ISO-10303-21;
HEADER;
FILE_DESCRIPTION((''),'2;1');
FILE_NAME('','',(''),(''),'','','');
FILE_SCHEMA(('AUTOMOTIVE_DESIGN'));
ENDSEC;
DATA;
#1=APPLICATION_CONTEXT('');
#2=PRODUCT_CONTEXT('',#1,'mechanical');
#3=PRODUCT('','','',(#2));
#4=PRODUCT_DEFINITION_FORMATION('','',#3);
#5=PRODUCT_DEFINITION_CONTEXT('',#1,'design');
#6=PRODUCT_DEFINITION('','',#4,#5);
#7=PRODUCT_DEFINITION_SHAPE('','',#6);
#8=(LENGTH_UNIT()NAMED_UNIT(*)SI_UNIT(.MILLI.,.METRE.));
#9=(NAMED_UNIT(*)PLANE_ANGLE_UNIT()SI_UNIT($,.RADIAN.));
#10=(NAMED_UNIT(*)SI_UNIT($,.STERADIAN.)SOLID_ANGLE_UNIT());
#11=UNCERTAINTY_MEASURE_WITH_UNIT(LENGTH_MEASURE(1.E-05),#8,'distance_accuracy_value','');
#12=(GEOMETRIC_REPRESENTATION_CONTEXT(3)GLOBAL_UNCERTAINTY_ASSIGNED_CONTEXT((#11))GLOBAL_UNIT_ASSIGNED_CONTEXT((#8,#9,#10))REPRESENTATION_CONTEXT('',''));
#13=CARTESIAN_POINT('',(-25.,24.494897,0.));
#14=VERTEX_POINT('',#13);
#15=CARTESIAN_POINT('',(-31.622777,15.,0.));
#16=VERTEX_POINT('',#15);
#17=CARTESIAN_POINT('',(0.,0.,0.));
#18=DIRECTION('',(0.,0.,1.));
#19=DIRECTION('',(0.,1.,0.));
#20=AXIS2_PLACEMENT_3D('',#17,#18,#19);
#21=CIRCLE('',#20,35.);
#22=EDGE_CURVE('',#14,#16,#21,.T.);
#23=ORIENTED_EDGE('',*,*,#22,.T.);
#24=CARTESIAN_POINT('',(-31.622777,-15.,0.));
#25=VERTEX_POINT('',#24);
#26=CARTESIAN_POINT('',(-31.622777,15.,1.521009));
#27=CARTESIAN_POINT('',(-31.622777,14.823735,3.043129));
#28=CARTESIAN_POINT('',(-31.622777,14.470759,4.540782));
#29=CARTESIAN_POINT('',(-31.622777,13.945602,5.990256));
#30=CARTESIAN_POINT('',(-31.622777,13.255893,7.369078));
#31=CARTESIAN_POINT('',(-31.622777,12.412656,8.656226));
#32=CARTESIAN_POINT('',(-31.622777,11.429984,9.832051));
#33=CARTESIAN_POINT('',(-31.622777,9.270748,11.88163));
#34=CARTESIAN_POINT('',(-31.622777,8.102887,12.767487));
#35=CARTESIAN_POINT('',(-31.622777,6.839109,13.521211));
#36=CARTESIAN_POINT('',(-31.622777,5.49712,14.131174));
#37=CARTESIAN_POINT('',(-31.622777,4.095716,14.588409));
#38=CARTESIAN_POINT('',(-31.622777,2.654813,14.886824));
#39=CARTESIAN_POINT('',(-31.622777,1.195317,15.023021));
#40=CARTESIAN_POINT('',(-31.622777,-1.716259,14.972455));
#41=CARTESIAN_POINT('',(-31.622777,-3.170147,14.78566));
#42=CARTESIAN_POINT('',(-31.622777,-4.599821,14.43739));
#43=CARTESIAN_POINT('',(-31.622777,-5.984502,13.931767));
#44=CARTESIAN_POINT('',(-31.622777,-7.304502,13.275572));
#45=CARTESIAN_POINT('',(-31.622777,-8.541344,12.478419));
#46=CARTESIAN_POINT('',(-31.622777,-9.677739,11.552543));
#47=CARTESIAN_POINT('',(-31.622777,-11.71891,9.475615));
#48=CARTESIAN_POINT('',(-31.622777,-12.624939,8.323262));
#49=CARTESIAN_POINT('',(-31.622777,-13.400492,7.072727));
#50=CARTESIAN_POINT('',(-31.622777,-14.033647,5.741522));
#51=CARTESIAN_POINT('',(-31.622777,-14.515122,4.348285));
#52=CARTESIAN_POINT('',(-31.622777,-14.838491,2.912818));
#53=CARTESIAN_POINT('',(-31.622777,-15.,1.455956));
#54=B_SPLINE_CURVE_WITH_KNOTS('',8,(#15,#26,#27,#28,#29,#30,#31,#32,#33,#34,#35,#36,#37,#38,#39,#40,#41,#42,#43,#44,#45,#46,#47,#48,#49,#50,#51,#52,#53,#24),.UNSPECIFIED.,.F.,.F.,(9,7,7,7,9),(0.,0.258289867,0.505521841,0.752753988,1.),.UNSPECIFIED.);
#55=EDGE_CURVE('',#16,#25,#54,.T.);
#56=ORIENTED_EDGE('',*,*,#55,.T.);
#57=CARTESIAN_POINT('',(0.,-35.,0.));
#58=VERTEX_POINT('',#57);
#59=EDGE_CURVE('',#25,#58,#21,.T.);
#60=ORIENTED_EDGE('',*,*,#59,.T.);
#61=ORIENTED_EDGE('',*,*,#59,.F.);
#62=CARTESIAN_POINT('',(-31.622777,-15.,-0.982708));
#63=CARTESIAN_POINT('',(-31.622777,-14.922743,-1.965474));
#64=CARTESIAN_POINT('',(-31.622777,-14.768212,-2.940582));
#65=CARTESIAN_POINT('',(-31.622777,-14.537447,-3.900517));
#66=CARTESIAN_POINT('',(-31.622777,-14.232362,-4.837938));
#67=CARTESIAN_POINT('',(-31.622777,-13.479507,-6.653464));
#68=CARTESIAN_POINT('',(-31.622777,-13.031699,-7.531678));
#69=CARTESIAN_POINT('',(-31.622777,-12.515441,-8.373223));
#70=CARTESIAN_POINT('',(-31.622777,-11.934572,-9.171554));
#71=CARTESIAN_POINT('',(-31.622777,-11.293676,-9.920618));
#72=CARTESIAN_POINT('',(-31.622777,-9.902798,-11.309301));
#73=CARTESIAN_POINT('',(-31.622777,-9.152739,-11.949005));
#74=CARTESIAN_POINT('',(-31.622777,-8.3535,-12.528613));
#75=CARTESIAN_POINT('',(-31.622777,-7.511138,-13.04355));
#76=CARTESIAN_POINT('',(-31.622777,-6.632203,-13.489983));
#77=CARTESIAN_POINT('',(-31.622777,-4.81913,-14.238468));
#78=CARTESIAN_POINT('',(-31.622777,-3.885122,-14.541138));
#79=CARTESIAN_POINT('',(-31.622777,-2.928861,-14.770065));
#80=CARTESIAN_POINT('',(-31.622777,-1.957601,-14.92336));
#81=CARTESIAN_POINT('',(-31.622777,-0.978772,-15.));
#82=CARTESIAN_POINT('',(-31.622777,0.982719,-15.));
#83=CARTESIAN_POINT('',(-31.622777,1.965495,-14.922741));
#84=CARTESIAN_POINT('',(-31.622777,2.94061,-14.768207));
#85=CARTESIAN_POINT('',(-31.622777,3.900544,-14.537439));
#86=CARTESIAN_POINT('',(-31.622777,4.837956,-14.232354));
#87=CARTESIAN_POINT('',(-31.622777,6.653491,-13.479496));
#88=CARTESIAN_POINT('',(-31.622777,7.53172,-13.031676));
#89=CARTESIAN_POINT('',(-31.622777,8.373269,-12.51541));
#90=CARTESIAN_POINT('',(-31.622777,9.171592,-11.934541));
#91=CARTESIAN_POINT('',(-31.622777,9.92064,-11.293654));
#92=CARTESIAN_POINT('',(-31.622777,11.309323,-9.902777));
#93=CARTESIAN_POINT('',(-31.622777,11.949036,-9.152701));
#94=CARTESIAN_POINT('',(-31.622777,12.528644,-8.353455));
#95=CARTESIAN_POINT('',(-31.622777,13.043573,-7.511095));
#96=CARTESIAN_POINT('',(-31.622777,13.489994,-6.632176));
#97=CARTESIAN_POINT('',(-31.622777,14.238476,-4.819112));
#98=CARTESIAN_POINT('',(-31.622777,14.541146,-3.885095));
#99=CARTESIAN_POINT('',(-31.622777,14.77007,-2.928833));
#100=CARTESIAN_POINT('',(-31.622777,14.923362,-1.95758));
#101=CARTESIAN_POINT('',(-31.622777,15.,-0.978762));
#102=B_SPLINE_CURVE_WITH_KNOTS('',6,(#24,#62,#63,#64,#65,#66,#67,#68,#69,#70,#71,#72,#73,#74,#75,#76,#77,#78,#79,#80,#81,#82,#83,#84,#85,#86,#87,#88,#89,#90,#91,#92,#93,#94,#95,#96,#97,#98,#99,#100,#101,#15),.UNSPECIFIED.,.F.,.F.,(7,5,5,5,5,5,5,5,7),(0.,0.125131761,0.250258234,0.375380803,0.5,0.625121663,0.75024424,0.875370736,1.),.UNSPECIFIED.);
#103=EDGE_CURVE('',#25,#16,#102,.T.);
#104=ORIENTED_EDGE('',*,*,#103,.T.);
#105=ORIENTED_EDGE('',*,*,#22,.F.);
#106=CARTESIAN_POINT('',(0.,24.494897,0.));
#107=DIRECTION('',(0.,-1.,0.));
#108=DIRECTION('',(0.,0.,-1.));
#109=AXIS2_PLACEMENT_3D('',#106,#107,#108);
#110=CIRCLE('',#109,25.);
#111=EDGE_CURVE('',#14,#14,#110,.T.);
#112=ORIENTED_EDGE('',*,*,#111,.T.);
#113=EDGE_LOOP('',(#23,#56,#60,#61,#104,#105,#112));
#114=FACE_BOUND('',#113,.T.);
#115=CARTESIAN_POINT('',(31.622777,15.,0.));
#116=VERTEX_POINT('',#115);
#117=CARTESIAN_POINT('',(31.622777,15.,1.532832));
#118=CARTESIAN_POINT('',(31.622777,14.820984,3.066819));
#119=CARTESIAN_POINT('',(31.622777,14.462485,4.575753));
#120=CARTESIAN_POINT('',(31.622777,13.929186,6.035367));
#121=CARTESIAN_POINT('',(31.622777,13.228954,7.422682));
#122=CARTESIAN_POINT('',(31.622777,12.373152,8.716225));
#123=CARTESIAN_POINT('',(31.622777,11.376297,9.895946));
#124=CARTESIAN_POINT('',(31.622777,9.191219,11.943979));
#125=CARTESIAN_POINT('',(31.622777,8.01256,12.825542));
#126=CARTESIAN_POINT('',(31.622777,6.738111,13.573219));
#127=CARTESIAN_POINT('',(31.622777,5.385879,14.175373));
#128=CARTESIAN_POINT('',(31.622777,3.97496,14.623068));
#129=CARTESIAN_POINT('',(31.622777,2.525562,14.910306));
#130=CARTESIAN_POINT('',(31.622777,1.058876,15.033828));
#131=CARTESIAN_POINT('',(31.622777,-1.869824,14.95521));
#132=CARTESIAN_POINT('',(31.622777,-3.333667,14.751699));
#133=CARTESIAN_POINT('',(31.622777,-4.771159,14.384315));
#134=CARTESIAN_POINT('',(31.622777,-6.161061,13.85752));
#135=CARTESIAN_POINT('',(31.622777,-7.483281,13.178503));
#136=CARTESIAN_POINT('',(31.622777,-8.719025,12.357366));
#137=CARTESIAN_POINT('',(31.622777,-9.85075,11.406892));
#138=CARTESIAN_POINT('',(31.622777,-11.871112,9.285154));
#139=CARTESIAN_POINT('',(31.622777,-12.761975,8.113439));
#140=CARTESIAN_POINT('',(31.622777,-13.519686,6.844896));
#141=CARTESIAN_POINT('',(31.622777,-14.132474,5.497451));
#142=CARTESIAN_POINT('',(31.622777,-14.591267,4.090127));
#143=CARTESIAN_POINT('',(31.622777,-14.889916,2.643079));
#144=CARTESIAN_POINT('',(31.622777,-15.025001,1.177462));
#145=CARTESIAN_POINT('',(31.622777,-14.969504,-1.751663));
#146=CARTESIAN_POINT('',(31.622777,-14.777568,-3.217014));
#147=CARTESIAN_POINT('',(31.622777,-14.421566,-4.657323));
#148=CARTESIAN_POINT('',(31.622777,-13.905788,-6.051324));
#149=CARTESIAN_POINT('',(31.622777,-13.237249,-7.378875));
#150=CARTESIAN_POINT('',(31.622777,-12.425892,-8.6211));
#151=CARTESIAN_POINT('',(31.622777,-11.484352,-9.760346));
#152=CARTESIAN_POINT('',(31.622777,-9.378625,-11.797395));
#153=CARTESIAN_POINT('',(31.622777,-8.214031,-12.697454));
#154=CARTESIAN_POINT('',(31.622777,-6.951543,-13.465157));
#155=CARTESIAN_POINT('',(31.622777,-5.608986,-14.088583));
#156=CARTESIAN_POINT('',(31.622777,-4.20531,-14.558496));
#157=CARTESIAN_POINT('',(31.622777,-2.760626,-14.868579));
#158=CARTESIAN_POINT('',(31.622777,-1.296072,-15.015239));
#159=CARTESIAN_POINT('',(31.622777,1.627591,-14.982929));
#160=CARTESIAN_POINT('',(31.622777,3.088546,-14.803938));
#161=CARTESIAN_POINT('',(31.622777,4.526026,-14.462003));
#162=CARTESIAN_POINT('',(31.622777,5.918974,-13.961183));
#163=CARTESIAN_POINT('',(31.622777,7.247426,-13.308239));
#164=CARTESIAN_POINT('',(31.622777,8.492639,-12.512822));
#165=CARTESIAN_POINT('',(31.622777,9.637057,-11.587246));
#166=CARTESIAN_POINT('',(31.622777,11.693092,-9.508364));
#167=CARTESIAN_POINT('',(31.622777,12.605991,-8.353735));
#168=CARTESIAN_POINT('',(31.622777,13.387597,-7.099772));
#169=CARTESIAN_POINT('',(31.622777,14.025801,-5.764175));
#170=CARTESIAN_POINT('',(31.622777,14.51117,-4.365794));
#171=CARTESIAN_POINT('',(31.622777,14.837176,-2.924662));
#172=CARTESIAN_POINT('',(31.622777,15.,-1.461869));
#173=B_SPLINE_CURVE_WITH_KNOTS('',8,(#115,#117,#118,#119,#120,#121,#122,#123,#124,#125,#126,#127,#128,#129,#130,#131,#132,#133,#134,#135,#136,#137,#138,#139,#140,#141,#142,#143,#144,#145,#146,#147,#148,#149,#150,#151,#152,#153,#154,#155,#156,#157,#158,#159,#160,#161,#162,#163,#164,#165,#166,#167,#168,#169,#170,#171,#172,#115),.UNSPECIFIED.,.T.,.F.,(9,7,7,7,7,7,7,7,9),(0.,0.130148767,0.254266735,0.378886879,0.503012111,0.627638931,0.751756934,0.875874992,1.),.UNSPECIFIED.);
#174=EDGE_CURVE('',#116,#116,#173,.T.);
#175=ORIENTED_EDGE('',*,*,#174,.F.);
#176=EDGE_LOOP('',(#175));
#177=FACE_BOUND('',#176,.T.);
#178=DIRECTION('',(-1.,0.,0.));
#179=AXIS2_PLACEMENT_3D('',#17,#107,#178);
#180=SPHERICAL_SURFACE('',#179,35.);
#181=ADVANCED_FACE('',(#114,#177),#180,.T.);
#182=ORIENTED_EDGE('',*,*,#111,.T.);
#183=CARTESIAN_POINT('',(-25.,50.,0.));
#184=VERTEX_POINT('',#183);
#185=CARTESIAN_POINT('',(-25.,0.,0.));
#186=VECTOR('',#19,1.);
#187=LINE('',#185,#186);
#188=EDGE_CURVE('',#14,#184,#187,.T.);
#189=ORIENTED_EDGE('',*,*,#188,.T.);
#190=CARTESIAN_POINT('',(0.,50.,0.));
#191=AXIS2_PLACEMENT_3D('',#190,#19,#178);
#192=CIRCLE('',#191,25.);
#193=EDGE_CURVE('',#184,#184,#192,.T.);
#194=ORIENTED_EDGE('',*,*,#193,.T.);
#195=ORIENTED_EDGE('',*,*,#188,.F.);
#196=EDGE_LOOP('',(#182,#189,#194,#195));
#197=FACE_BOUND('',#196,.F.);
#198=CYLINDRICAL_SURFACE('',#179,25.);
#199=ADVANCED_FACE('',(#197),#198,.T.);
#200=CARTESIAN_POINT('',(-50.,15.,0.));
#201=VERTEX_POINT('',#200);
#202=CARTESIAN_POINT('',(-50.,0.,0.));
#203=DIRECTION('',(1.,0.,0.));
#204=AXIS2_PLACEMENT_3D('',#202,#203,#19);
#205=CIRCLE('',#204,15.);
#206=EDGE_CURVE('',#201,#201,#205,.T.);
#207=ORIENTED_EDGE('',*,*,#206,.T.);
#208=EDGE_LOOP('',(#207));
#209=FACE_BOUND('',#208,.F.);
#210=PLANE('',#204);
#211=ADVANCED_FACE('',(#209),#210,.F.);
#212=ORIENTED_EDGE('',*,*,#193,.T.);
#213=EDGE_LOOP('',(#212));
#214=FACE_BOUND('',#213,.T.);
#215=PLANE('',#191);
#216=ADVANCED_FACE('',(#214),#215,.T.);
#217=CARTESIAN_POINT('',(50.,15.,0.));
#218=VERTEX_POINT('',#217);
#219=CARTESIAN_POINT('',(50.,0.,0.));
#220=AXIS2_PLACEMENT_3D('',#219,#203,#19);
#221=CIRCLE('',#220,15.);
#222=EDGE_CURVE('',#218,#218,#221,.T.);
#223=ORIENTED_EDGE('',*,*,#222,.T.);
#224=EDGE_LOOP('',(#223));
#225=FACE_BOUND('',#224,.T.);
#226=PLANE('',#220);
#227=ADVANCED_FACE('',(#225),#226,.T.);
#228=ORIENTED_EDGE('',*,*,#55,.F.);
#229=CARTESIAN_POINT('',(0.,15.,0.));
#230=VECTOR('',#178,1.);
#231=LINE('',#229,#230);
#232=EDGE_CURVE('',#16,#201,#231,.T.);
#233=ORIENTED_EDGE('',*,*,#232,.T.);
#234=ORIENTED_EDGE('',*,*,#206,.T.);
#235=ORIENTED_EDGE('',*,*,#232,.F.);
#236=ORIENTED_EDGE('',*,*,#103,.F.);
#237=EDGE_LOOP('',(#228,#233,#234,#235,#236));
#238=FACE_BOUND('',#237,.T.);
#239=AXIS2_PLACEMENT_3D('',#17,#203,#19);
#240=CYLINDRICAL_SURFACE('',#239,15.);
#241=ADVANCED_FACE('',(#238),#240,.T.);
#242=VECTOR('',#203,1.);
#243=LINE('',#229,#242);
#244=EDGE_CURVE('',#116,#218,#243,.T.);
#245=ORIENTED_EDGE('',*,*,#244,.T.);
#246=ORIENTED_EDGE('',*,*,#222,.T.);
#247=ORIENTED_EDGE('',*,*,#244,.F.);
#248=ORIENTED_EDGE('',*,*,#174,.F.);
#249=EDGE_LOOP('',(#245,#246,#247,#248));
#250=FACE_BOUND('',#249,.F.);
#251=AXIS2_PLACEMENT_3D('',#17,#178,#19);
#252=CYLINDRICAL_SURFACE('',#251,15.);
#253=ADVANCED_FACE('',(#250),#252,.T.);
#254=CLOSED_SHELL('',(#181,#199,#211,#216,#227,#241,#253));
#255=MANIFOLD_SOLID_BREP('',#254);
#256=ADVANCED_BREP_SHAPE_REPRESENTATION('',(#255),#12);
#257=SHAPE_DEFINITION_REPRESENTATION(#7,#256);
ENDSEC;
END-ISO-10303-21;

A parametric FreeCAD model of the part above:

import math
import FreeCAD as App
import Part
import Sketcher
from FreeCAD import Vector
Q = App.Units.Quantity

doc = App.newDocument("Part")
body = doc.addObject("PartDesign::Body", "Body")

sketch1 = body.newObject("Sketcher::SketchObject", "Sketch")
sketch1.AttachmentSupport = (doc.getObject("XY_Plane"), [""])
sketch1.MapMode = "FlatFace"
sketch1.addGeometry([
    Part.LineSegment(Vector(0, -35, 0), Vector(0, 35, 0)),
    Part.ArcOfCircle(Part.Circle(Vector(0, 0, 0), Vector(0, 0, 1), 35), math.radians(90), math.radians(270)),
], False)
sketch1.addConstraint([
    Sketcher.Constraint("Coincident", 0, 1, 1, 2),
    Sketcher.Constraint("Coincident", 1, 1, 0, 2),
    Sketcher.Constraint("Vertical", 0),
    Sketcher.Constraint("Coincident", 1, 3, -1, 1),
    Sketcher.Constraint("PointOnObject", 0, 1, -2),
    Sketcher.Constraint("Radius", 1, Q("35 mm")),
])
revolution = body.newObject("PartDesign::Revolution", "Revolution")
revolution.Profile = sketch1
revolution.ReferenceAxis = (sketch1, ["V_Axis"])
revolution.Angle = 360

sketch2 = body.newObject("Sketcher::SketchObject", "Sketch001")
sketch2.AttachmentSupport = (doc.getObject("XZ_Plane"), [""])
sketch2.MapMode = "FlatFace"
sketch2.addGeometry(Part.Circle(Vector(0, 0, 0), Vector(0, 0, 1), 25), False)
sketch2.addConstraint([
    Sketcher.Constraint("Coincident", 0, 3, -1, 1),
    Sketcher.Constraint("Diameter", 0, Q("50 mm")),
])
pad1 = body.newObject("PartDesign::Pad", "Pad")
pad1.Profile = sketch2
pad1.Length = 50
pad1.Reversed = True

sketch3 = body.newObject("Sketcher::SketchObject", "Sketch002")
sketch3.AttachmentSupport = (doc.getObject("YZ_Plane"), [""])
sketch3.MapMode = "FlatFace"
sketch3.addGeometry(Part.Circle(Vector(0, 0, 0), Vector(0, 0, 1), 15), False)
sketch3.addConstraint([
    Sketcher.Constraint("Coincident", 0, 3, -1, 1),
    Sketcher.Constraint("Diameter", 0, Q("30 mm")),
])
pad2 = body.newObject("PartDesign::Pad", "Pad001")
pad2.Profile = sketch3
pad2.Length = 100
pad2.Midplane = True

doc.recompute()
